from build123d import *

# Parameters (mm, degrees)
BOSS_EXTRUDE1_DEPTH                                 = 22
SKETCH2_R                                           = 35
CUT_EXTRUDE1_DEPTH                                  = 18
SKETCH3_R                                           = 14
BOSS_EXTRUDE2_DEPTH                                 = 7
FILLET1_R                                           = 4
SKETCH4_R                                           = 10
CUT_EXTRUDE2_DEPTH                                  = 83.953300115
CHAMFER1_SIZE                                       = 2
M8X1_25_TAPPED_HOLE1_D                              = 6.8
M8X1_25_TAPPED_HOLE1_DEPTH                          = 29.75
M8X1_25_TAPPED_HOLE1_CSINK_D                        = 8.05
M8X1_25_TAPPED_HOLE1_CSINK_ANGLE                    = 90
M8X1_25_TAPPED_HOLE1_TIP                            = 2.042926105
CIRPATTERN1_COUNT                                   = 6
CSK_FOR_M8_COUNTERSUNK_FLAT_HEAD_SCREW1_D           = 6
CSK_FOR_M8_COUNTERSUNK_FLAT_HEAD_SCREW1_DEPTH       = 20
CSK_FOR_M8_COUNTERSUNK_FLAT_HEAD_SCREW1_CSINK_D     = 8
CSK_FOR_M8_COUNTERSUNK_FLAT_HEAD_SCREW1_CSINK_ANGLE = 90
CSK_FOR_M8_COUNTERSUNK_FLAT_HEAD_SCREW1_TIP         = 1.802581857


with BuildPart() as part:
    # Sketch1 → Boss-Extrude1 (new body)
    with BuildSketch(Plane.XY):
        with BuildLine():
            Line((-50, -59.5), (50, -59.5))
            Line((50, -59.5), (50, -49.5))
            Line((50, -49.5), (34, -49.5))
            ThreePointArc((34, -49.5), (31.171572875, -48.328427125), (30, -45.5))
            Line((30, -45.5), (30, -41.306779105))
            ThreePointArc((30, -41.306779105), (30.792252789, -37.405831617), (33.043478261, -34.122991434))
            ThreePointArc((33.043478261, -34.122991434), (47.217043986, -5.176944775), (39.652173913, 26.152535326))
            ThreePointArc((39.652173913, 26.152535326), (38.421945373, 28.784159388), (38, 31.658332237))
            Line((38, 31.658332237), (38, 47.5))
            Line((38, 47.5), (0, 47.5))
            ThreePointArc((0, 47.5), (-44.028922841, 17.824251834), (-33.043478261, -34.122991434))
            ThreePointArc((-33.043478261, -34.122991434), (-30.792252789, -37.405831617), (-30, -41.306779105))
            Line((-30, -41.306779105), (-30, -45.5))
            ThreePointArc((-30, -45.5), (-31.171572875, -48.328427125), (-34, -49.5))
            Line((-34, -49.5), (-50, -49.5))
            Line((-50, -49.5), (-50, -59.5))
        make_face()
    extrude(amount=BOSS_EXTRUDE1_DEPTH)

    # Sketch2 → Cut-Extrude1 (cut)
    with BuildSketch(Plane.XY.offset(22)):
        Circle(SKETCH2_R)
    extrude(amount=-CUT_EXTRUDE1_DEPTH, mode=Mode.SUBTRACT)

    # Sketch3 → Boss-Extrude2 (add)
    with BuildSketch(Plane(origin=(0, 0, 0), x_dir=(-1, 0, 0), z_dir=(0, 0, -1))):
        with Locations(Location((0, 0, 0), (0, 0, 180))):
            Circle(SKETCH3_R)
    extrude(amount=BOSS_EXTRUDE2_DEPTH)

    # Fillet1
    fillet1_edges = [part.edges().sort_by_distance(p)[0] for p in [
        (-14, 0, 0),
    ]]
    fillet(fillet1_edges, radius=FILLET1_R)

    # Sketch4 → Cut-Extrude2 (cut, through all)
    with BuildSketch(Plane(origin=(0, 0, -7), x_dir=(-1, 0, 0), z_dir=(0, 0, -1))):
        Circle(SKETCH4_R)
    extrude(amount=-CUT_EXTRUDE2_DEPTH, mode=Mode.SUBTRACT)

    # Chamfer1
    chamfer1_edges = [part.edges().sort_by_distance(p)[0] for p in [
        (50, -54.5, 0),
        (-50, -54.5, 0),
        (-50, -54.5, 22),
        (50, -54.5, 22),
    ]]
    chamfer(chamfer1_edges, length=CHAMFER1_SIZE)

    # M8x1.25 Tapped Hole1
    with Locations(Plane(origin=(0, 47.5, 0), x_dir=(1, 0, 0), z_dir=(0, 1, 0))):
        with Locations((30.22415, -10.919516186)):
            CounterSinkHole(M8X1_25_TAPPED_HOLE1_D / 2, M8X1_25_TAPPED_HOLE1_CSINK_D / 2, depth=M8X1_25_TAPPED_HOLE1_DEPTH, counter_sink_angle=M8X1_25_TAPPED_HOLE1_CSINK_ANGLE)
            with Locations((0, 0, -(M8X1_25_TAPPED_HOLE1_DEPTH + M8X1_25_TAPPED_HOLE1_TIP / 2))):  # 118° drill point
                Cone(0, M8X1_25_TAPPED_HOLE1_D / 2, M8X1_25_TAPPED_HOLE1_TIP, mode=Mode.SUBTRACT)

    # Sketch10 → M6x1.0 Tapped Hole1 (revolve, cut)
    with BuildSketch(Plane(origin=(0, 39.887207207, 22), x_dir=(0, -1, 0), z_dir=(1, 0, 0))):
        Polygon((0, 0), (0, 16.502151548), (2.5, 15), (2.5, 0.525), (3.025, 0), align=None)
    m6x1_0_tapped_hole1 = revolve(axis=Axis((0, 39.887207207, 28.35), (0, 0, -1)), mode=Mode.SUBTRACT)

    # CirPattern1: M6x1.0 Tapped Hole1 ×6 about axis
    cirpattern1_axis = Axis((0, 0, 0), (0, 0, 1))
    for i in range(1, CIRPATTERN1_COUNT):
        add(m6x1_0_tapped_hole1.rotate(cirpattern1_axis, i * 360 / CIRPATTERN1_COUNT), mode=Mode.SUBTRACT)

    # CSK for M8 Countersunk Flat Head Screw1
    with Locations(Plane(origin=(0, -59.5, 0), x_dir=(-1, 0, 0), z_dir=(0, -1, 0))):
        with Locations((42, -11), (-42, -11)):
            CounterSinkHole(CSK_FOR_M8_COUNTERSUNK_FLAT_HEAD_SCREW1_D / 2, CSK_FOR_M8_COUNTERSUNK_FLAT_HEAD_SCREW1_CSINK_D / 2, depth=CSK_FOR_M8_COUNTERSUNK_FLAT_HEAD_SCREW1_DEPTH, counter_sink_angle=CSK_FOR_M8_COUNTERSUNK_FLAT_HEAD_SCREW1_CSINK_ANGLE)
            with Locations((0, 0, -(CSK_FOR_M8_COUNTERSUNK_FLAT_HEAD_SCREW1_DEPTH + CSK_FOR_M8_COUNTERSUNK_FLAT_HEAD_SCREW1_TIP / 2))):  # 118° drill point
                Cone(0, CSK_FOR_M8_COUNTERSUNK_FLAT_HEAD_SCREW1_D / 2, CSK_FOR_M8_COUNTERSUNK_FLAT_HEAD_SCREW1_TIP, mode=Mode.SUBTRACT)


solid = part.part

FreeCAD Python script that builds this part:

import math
import FreeCAD as App
import Part
import Sketcher
from FreeCAD import Vector
Q = App.Units.Quantity


def edges_at(feature, points):
    """Names of the edges that pass closest to the given points."""
    edges = feature.Shape.Edges
    near = lambda p: min(range(len(edges)), key=lambda i: edges[i].distToShape(Part.Vertex(*p))[0])
    return sorted({f"Edge{near(p) + 1}" for p in points})

doc = App.newDocument("Part")
body = doc.addObject("PartDesign::Body", "Body")

# Sketch on XY plane
sketch1 = body.newObject("Sketcher::SketchObject", "Sketch")
sketch1.AttachmentSupport = (doc.getObject("XY_Plane"), [""])
sketch1.MapMode = "FlatFace"
sketch1.addGeometry([
    Part.LineSegment(Vector(-50, -59.5, 0), Vector(50, -59.5, 0)),  # 0
    Part.LineSegment(Vector(50, -59.5, 0), Vector(50, -49.5, 0)),  # 1
    Part.LineSegment(Vector(50, -49.5, 0), Vector(34, -49.5, 0)),  # 2
    Part.ArcOfCircle(Part.Circle(Vector(34, -45.5, 0), Vector(0, 0, 1), 4), math.radians(180), math.radians(270)),  # 3
    Part.LineSegment(Vector(30, -45.5, 0), Vector(30, -41.3, 0)),  # 4
    Part.ArcOfCircle(Part.Circle(Vector(40, -41.3, 0), Vector(0, 0, 1), 10), math.radians(134), math.radians(180)),  # 5
    Part.ArcOfCircle(Part.Circle(Vector(0, 0, 0), Vector(0, 0, 1), 47.5), math.radians(-46), math.radians(33)),  # 6
    Part.ArcOfCircle(Part.Circle(Vector(48, 31.7, 0), Vector(0, 0, 1), 10), math.radians(180), math.radians(213)),  # 7
    Part.LineSegment(Vector(38, 31.7, 0), Vector(38, 47.5, 0)),  # 8
    Part.LineSegment(Vector(38, 47.5, 0), Vector(0, 47.5, 0)),  # 9
    Part.ArcOfCircle(Part.Circle(Vector(0, 0, 0), Vector(0, 0, 1), 47.5), math.radians(90), math.radians(226)),  # 10
    Part.ArcOfCircle(Part.Circle(Vector(-40, -41.3, 0), Vector(0, 0, 1), 10), math.radians(0), math.radians(46)),  # 11
    Part.LineSegment(Vector(-30, -41.3, 0), Vector(-30, -45.5, 0)),  # 12
    Part.ArcOfCircle(Part.Circle(Vector(-34, -45.5, 0), Vector(0, 0, 1), 4), math.radians(-90), math.radians(0)),  # 13
    Part.LineSegment(Vector(-34, -49.5, 0), Vector(-50, -49.5, 0)),  # 14
    Part.LineSegment(Vector(-50, -49.5, 0), Vector(-50, -59.5, 0)),  # 15
], False)
sketch1.addConstraint([
    Sketcher.Constraint("Coincident", 0, 2, 1, 1),
    Sketcher.Constraint("Coincident", 1, 2, 2, 1),
    Sketcher.Constraint("Tangent", 2, 2, 3, 2),
    Sketcher.Constraint("Tangent", 3, 1, 4, 1),
    Sketcher.Constraint("Tangent", 4, 2, 5, 2),
    Sketcher.Constraint("Tangent", 5, 1, 6, 1),
    Sketcher.Constraint("Tangent", 6, 2, 7, 2),
    Sketcher.Constraint("Tangent", 7, 1, 8, 1),
    Sketcher.Constraint("Coincident", 8, 2, 9, 1),
    Sketcher.Constraint("Tangent", 9, 2, 10, 1),
    Sketcher.Constraint("Tangent", 10, 2, 11, 2),
    Sketcher.Constraint("Tangent", 11, 1, 12, 1),
    Sketcher.Constraint("Tangent", 12, 2, 13, 2),
    Sketcher.Constraint("Tangent", 13, 1, 14, 1),
    Sketcher.Constraint("Coincident", 14, 2, 15, 1),
    Sketcher.Constraint("Coincident", 15, 2, 0, 1),
    Sketcher.Constraint("Horizontal", 0),
    Sketcher.Constraint("Vertical", 1),
    Sketcher.Constraint("Horizontal", 2),
    Sketcher.Constraint("Vertical", 4),
    Sketcher.Constraint("Vertical", 8),
    Sketcher.Constraint("Horizontal", 9),
    Sketcher.Constraint("Vertical", 12),
    Sketcher.Constraint("Horizontal", 14),
    Sketcher.Constraint("Vertical", 15),
    Sketcher.Constraint("Coincident", 6, 3, -1, 1),
    Sketcher.Constraint("Coincident", 10, 3, -1, 1),
    Sketcher.Constraint("Equal", 5, 7),
    Sketcher.Constraint("Equal", 6, 10),
    Sketcher.Constraint("Equal", 7, 11),
    Sketcher.Constraint("Equal", 3, 13),
    Sketcher.Constraint("Symmetric", 3, 3, 13, 3, -2),
    Sketcher.Constraint("Equal", 2, 14),
    Sketcher.Constraint("Radius", 3, 4.0),
    Sketcher.Constraint("Radius", 5, 10.0),
    Sketcher.Constraint("Radius", 6, 47.5),
    Sketcher.Constraint("DistanceX", 0, 1, 0, 2, 100.0),
    Sketcher.Constraint("DistanceX", 2, 2, 2, 1, 16.0),
    Sketcher.Constraint("DistanceX", 9, 2, 9, 1, 38.0),
    Sketcher.Constraint("DistanceY", 1, 1, 1, 2, 10.0),
    Sketcher.Constraint("DistanceY", 3, 3, -1, 1, 45.5),
])
pad1 = body.newObject("PartDesign::Pad", "Pad")
pad1.Profile = sketch1
pad1.Length = 22

# Sketch on XY plane
sketch2 = body.newObject("Sketcher::SketchObject", "Sketch001")
sketch2.AttachmentSupport = (doc.getObject("XY_Plane"), [""])
sketch2.MapMode = "FlatFace"
sketch2.AttachmentOffset = App.Placement(Vector(0, 0, 22), App.Rotation())
sketch2.addGeometry(Part.Circle(Vector(0, 0, 0), Vector(0, 0, 1), 35), False)
sketch2.addConstraint([
    Sketcher.Constraint("Coincident", 0, 3, -1, 1),
    Sketcher.Constraint("Diameter", 0, 70.0),
])
pocket1 = body.newObject("PartDesign::Pocket", "Pocket")
pocket1.Profile = sketch2
pocket1.Length = 18

# Sketch on XY plane
sketch3 = body.newObject("Sketcher::SketchObject", "Sketch002")
sketch3.AttachmentSupport = (doc.getObject("XY_Plane"), [""])
sketch3.MapMode = "FlatFace"
sketch3.addGeometry(Part.Circle(Vector(0, 0, 0), Vector(0, 0, 1), 14), False)
sketch3.addConstraint([
    Sketcher.Constraint("Coincident", 0, 3, -1, 1),
    Sketcher.Constraint("Diameter", 0, 28.0),
])
pad2 = body.newObject("PartDesign::Pad", "Pad001")
pad2.Profile = sketch3
pad2.Length = 7
pad2.Reversed = True
doc.recompute()

fillet = body.newObject("PartDesign::Fillet", "Fillet")
fillet.Base = (pad2, edges_at(pad2, [(-14, 0, 0)]))
fillet.Radius = 4

# Sketch on XY plane
sketch4 = body.newObject("Sketcher::SketchObject", "Sketch003")
sketch4.AttachmentSupport = (doc.getObject("XY_Plane"), [""])
sketch4.MapMode = "FlatFace"
sketch4.AttachmentOffset = App.Placement(Vector(0, 0, -7), App.Rotation())
sketch4.addGeometry(Part.Circle(Vector(0, 0, 0), Vector(0, 0, 1), 10), False)
sketch4.addConstraint([
    Sketcher.Constraint("Coincident", 0, 3, -1, 1),
    Sketcher.Constraint("Diameter", 0, 20.0),
])
pocket2 = body.newObject("PartDesign::Pocket", "Pocket001")
pocket2.Profile = sketch4
pocket2.Type = "ThroughAll"
pocket2.Reversed = True
doc.recompute()

chamfer = body.newObject("PartDesign::Chamfer", "Chamfer")
chamfer.Base = (pocket2, edges_at(pocket2, [
    (50, -54.5, 0),
    (-50, -54.5, 0),
    (-50, -54.5, 22),
    (50, -54.5, 22),
]))
chamfer.Size = 2

# Sketch on XZ plane
sketch5 = body.newObject("Sketcher::SketchObject", "Sketch004")
sketch5.AttachmentSupport = (doc.getObject("XZ_Plane"), [""])
sketch5.MapMode = "FlatFace"
sketch5.AttachmentOffset = App.Placement(Vector(0, 0, -47.5), App.Rotation())
sketch5.addGeometry(Part.Circle(Vector(30.2, 10.9, 0), Vector(0, 0, 1), 3.4), False)
sketch5.addConstraint([
    Sketcher.Constraint("Diameter", 0, 6.8),
    Sketcher.Constraint("DistanceX", -1, 1, 0, 3, 30.22415),
    Sketcher.Constraint("DistanceY", -1, 1, 0, 3, 10.919516),
])
doc.recompute()
hole = body.newObject("PartDesign::Hole", "Hole")
hole.Profile = sketch5
hole.ThreadType = "None"
hole.Diameter = 6.8
hole.DepthType = "Dimension"
hole.Depth = 29.75
hole.DrillPoint = "Angled"
hole.DrillPointAngle = 118
hole.HoleCutType = "Countersink"
hole.HoleCutDiameter = 8.05
hole.HoleCutCountersinkAngle = 90
hole.Reversed = True

# Sketch on YZ plane
sketch6 = body.newObject("Sketcher::SketchObject", "Sketch005")
sketch6.AttachmentSupport = (doc.getObject("YZ_Plane"), [""])
sketch6.MapMode = "FlatFace"
sketch6.addGeometry([
    Part.LineSegment(Vector(39.9, 5.5, 0), Vector(39.9, 22, 0)),  # 0
    Part.LineSegment(Vector(39.9, 22, 0), Vector(36.9, 22, 0)),  # 1
    Part.LineSegment(Vector(36.9, 22, 0), Vector(37.4, 21.5, 0)),  # 2
    Part.LineSegment(Vector(37.4, 21.5, 0), Vector(37.4, 7, 0)),  # 3
    Part.LineSegment(Vector(37.4, 7, 0), Vector(39.9, 5.5, 0)),  # 4
], False)
sketch6.addGeometry(Part.LineSegment(Vector(39.9, 22, 0), Vector(39.9, 5.5, 0)), True)  # axis
sketch6.addConstraint([
    Sketcher.Constraint("Coincident", 0, 2, 1, 1),
    Sketcher.Constraint("Coincident", 1, 2, 2, 1),
    Sketcher.Constraint("Coincident", 2, 2, 3, 1),
    Sketcher.Constraint("Coincident", 3, 2, 4, 1),
    Sketcher.Constraint("Coincident", 4, 2, 0, 1),
    Sketcher.Constraint("Vertical", 0),
    Sketcher.Constraint("Horizontal", 1),
    Sketcher.Constraint("Vertical", 3),
    Sketcher.Constraint("Vertical", 5),
    Sketcher.Constraint("Coincident", 5, 1, 0, 2),
    Sketcher.Constraint("Equal", 0, 5),
    Sketcher.Constraint("Angle", 2, Q("-45 deg")),
    Sketcher.Constraint("Angle", 4, Q("-31 deg")),
    Sketcher.Constraint("DistanceY", -1, 1, 0, 2, 22.0),
    Sketcher.Constraint("DistanceY", -1, 1, 3, 2, 7.0),
    Sketcher.Constraint("DistanceX", 2, 2, 0, 2, 2.5),
    Sketcher.Constraint("DistanceX", 1, 2, 1, 1, 3.025),
    Sketcher.Constraint("DistanceX", -1, 1, 0, 2, 39.887207),
])
groove = body.newObject("PartDesign::Groove", "Groove")
groove.Profile = sketch6
groove.ReferenceAxis = (sketch6, ["Axis0"])
groove.Angle = 360
doc.recompute()

polarpattern = body.newObject("PartDesign::PolarPattern", "PolarPattern")
polarpattern.Originals = [groove]
polarpattern.Axis = (doc.getObject("Z_Axis"), [""])
polarpattern.Angle = 360
polarpattern.Occurrences = 6
body.Tip = polarpattern

# Sketch on XZ plane
sketch7 = body.newObject("Sketcher::SketchObject", "Sketch006")
sketch7.AttachmentSupport = (doc.getObject("XZ_Plane"), [""])
sketch7.MapMode = "FlatFace"
sketch7.AttachmentOffset = App.Placement(Vector(0, 0, 59.5), App.Rotation())
sketch7.addGeometry([
    Part.Circle(Vector(-42, 11, 0), Vector(0, 0, 1), 3),
    Part.Circle(Vector(42, 11, 0), Vector(0, 0, 1), 3),
], False)
sketch7.addConstraint([
    Sketcher.Constraint("Equal", 0, 1),
    Sketcher.Constraint("Symmetric", 0, 3, 1, 3, -2),
    Sketcher.Constraint("Diameter", 0, 6.0),
    Sketcher.Constraint("DistanceX", 0, 3, -1, 1, 42.0),
    Sketcher.Constraint("DistanceY", -1, 1, 0, 3, 11.0),
])
doc.recompute()
hole2 = body.newObject("PartDesign::Hole", "Hole001")
hole2.Profile = sketch7
hole2.ThreadType = "None"
hole2.Diameter = 6
hole2.DepthType = "Dimension"
hole2.Depth = 20
hole2.DrillPoint = "Angled"
hole2.DrillPointAngle = 118
hole2.HoleCutType = "Countersink"
hole2.HoleCutDiameter = 8
hole2.HoleCutCountersinkAngle = 90

doc.recompute()
